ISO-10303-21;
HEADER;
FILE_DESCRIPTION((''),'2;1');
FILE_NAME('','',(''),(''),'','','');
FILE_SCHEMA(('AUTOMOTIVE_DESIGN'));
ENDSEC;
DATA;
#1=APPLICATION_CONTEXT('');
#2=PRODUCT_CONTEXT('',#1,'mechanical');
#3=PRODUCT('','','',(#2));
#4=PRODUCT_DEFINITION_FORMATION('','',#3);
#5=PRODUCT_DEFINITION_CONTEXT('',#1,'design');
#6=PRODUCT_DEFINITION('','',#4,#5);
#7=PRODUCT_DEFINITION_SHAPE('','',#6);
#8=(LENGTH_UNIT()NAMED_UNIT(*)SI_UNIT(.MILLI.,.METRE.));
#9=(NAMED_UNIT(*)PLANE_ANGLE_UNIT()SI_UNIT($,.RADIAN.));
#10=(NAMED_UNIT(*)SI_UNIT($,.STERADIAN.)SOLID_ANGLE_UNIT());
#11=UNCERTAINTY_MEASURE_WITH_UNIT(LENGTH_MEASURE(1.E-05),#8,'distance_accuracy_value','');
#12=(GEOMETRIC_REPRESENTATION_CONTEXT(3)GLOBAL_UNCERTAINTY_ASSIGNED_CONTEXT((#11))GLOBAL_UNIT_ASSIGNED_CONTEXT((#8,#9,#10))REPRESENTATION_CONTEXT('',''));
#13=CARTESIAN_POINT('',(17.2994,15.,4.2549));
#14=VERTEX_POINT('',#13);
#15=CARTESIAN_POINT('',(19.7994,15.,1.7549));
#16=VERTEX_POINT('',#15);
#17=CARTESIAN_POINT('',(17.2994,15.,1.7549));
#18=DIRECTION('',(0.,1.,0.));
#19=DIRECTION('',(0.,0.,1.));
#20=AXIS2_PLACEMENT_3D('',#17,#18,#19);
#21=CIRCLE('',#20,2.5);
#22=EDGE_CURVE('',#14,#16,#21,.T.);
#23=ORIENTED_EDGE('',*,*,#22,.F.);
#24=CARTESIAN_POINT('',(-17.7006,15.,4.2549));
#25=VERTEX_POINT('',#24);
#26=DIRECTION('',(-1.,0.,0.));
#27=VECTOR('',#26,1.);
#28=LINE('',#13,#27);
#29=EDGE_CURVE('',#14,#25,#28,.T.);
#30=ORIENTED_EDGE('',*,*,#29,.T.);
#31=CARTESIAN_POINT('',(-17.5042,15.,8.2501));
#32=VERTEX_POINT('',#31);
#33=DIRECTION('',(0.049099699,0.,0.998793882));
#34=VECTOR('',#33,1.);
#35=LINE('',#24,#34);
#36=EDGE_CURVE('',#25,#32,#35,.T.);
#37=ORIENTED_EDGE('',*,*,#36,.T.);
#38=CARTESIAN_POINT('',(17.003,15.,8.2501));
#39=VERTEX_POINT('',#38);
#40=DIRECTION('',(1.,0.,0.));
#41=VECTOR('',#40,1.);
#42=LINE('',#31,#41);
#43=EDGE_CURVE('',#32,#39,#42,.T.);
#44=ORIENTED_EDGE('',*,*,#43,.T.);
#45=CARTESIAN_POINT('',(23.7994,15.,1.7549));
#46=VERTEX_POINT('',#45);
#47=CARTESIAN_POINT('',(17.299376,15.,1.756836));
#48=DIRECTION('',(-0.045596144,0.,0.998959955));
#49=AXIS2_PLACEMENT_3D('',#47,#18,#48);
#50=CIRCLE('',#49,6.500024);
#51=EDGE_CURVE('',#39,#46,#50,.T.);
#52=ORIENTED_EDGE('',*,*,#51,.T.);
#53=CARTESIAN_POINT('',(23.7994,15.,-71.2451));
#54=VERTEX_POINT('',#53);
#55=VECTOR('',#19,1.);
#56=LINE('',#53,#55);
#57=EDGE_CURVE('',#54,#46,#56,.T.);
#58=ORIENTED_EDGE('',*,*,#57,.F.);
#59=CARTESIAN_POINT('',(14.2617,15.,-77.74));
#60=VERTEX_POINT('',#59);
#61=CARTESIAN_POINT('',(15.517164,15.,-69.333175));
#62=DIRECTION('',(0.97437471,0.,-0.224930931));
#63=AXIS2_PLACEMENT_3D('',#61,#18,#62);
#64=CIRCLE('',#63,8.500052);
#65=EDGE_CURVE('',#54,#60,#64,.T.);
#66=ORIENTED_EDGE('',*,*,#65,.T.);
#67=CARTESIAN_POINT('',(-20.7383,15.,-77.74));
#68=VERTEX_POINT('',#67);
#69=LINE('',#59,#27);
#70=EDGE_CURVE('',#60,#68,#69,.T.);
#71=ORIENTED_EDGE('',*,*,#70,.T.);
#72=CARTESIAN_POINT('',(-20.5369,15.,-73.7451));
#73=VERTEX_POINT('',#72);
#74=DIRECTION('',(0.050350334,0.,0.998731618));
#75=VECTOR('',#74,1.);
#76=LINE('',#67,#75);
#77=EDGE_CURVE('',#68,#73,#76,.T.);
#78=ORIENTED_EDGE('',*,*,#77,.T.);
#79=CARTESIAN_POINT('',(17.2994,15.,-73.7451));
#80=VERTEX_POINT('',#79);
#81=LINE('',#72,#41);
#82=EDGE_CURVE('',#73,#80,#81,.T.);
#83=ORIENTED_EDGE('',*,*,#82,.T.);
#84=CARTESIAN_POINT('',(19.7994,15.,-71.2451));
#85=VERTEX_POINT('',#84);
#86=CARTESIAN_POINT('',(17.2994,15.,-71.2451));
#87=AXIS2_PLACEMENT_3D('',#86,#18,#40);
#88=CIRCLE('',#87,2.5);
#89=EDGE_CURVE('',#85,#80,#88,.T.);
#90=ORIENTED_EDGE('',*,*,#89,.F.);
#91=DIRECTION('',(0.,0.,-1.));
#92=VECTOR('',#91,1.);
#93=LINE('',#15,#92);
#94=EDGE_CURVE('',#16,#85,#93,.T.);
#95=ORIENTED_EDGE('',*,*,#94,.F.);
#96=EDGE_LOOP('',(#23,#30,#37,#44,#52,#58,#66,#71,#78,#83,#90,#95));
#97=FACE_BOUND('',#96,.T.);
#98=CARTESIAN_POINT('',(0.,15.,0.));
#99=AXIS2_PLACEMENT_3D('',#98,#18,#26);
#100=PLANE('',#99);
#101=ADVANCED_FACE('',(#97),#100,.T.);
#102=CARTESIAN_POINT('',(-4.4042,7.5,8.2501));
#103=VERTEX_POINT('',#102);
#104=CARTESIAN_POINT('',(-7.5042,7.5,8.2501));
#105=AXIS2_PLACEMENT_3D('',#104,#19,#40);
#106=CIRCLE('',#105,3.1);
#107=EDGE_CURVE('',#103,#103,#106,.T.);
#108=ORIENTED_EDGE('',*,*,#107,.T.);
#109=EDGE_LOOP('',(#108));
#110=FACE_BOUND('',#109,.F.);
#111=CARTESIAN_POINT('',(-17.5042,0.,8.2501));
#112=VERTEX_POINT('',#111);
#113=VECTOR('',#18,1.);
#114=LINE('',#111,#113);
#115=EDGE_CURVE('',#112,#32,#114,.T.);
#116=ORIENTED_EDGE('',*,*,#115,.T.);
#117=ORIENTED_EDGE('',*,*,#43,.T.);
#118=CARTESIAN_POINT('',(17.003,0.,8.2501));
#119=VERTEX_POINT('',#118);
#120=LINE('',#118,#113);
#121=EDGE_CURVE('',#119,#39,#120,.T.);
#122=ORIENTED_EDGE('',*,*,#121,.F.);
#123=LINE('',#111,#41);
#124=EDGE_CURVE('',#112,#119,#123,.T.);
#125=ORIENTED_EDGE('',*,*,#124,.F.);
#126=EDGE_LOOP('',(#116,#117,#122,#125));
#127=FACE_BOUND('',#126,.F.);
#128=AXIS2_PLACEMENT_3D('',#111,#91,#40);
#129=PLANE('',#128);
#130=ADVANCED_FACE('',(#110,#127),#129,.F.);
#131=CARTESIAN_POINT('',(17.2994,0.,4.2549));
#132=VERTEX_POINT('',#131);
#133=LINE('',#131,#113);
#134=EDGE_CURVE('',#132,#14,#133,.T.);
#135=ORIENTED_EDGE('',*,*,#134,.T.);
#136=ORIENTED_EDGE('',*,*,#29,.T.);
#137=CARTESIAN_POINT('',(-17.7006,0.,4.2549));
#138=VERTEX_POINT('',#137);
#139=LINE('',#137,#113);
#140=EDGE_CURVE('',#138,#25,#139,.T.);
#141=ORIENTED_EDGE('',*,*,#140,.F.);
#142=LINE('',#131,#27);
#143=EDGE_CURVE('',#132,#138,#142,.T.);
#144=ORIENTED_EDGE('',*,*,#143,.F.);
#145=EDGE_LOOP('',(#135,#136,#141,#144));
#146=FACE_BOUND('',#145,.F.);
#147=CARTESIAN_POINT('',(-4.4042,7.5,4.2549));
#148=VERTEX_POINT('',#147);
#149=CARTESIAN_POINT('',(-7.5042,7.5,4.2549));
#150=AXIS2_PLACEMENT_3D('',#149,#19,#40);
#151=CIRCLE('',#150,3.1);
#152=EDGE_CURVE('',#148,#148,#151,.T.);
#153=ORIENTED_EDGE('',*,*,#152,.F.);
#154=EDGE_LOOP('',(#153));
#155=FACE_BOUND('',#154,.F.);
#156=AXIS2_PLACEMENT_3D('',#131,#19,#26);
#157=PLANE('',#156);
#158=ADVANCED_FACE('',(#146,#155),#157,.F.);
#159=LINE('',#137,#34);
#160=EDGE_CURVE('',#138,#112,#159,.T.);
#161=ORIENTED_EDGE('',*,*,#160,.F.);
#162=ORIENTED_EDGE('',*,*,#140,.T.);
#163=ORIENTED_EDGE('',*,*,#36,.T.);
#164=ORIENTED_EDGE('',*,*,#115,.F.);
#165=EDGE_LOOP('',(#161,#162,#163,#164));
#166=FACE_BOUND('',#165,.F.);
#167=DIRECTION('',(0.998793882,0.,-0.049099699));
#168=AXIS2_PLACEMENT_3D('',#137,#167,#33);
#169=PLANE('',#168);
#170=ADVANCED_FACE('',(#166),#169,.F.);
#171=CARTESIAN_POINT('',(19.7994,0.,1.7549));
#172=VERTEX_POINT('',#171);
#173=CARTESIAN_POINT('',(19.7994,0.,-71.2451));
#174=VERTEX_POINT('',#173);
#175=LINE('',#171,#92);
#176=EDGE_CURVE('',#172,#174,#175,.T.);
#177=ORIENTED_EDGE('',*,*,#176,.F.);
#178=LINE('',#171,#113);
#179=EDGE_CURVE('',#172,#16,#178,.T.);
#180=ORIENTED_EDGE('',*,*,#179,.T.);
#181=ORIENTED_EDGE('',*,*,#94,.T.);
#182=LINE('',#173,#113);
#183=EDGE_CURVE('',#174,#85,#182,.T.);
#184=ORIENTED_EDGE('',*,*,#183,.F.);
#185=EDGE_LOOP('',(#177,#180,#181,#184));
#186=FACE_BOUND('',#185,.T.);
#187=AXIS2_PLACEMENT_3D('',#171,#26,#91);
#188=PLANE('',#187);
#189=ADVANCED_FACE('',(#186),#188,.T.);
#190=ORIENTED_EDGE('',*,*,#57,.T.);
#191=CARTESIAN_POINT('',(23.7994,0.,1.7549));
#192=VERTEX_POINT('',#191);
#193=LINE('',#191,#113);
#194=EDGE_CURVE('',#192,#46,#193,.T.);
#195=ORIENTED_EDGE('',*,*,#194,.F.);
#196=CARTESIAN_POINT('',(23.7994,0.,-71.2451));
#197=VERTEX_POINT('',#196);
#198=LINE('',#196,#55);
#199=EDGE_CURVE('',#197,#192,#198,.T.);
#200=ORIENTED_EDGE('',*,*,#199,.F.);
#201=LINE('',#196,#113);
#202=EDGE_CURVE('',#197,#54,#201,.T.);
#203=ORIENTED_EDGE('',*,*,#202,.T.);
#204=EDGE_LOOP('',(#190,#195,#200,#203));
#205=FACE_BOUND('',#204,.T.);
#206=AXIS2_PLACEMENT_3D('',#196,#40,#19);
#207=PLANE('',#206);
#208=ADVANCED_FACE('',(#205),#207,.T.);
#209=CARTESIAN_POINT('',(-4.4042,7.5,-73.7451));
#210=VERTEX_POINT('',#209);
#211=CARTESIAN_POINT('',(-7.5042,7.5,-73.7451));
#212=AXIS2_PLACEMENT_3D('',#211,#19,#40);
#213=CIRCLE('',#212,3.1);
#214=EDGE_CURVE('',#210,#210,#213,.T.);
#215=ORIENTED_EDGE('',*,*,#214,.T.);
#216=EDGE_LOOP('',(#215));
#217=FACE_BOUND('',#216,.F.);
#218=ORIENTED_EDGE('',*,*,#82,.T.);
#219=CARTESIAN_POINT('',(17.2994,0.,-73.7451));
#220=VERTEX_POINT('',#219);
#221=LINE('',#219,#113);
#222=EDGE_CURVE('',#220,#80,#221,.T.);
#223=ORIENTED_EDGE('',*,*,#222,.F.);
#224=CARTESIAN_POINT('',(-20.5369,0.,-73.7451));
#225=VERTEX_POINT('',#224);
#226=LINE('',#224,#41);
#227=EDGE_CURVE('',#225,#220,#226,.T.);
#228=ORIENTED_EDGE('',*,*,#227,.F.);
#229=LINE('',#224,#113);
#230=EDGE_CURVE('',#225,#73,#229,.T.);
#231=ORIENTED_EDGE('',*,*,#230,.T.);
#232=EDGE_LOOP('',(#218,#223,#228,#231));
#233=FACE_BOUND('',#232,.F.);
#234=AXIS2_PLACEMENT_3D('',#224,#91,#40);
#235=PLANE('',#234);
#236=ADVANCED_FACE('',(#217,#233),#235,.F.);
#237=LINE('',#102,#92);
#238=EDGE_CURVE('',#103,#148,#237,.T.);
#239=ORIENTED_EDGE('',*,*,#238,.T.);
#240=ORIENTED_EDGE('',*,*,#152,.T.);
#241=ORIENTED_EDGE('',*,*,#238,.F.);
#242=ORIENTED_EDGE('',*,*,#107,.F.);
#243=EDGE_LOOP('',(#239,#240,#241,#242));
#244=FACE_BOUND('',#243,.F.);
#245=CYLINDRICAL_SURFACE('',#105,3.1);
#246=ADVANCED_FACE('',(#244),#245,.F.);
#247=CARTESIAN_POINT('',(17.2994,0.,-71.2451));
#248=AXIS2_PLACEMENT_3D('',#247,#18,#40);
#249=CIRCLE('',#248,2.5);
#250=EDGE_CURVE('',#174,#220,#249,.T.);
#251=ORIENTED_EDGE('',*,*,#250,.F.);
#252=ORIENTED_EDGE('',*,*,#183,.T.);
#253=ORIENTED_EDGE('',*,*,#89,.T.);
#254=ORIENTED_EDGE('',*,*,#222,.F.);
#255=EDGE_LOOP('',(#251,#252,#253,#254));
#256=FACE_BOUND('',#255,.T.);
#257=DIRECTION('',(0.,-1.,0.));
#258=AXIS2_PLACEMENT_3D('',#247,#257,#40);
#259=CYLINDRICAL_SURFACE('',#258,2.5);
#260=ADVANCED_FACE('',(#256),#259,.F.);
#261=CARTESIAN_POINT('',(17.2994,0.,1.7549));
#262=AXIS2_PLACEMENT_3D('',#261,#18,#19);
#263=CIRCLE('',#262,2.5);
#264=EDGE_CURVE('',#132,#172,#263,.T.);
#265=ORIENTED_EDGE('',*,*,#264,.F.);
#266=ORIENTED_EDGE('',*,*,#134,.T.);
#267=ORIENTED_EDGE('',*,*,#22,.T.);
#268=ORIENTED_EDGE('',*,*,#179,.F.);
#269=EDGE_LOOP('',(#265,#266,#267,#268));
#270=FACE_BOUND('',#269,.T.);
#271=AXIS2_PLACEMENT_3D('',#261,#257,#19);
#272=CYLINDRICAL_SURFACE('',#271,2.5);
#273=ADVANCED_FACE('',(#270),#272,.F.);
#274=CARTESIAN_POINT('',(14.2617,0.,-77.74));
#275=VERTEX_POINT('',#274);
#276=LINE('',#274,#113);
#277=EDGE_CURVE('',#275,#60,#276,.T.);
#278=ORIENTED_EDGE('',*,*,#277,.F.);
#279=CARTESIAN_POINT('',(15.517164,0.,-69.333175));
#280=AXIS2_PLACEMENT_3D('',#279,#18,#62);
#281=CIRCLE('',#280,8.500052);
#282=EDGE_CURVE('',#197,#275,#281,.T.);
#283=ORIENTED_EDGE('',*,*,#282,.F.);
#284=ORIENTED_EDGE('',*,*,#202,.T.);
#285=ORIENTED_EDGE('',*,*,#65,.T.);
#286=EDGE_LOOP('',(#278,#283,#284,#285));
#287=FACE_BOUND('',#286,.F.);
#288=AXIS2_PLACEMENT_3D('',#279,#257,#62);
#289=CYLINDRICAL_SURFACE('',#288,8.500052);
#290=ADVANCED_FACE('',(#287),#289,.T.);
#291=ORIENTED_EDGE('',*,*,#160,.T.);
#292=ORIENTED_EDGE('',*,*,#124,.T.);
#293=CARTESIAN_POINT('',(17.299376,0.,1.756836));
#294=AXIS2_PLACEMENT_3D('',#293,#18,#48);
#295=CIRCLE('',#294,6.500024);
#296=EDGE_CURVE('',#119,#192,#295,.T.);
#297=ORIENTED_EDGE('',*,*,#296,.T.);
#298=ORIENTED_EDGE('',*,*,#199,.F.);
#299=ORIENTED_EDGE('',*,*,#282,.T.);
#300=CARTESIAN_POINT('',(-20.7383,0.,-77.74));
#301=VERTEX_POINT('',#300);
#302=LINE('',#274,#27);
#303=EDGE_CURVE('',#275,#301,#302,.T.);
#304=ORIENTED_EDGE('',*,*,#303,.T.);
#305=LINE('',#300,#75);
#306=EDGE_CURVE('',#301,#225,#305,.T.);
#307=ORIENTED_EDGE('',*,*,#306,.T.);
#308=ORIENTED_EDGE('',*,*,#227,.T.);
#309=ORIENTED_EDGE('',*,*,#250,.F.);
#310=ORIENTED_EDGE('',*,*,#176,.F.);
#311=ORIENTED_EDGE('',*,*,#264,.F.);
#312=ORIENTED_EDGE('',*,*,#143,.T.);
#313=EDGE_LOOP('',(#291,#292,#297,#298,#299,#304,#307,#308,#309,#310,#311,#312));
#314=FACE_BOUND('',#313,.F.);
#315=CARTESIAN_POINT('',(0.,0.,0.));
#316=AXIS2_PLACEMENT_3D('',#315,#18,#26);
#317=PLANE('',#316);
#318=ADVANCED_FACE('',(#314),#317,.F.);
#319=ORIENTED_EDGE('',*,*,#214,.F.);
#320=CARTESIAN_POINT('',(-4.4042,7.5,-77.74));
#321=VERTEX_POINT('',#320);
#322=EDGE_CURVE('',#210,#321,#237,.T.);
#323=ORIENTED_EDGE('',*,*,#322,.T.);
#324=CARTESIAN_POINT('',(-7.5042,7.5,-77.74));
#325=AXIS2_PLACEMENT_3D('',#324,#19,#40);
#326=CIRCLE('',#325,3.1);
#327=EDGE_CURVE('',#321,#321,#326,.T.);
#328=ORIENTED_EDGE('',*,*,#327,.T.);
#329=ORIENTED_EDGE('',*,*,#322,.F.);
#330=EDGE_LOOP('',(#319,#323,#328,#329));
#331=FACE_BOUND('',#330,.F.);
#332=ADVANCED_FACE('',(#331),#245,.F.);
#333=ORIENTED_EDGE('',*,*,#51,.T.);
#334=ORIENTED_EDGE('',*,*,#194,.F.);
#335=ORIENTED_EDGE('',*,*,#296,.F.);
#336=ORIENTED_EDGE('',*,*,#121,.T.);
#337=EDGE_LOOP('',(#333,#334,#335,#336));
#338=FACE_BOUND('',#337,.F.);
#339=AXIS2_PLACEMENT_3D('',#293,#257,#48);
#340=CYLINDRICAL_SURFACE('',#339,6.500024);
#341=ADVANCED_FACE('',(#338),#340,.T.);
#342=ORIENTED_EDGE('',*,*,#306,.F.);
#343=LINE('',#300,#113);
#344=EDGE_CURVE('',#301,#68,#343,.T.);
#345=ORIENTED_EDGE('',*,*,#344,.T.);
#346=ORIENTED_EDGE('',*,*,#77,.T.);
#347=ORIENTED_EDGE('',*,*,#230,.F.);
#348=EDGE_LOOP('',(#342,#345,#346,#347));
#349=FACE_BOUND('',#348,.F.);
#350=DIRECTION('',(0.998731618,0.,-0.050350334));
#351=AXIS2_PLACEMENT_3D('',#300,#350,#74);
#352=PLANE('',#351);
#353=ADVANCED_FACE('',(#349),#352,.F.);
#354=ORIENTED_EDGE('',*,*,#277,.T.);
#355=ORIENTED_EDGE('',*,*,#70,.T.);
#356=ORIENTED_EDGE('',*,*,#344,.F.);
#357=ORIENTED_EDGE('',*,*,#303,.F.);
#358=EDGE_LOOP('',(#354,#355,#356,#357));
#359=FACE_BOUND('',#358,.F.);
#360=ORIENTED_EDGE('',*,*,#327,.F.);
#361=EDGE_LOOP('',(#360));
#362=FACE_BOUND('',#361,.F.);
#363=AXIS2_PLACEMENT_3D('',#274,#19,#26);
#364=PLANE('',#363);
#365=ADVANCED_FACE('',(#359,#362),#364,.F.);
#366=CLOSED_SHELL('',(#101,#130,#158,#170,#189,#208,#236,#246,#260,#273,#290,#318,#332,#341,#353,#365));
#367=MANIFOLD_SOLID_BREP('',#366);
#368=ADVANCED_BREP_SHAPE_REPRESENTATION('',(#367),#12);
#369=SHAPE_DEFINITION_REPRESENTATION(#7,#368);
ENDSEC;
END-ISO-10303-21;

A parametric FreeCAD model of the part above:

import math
import FreeCAD as App
import Part
import Sketcher

doc = App.newDocument("Part")
body = doc.addObject("PartDesign::Body", "Body")

sketch1 = body.newObject("Sketcher::SketchObject", "Sketch")
sketch1.AttachmentSupport = (doc.getObject("XZ_Plane"), [""])
sketch1.MapMode = "FlatFace"
sketch1.addGeometry(Part.LineSegment(App.Vector(-20.7383, -77.74, 0), App.Vector(-20.5369, -73.7451, 0)), False)
sketch1.addGeometry(Part.LineSegment(App.Vector(-20.5369, -73.7451, 0), App.Vector(17.2994, -73.7451, 0)), False)
sketch1.addGeometry(Part.ArcOfCircle(Part.Circle(App.Vector(17.2994, -71.2451, 0), App.Vector(0, 0, 1), 2.5), math.radians(-90), math.radians(0)), False)
sketch1.addGeometry(Part.LineSegment(App.Vector(19.7994, -71.2451, 0), App.Vector(19.7994, 1.7549, 0)), False)
sketch1.addGeometry(Part.ArcOfCircle(Part.Circle(App.Vector(17.2994, 1.7549, 0), App.Vector(0, 0, 1), 2.5), math.radians(0), math.radians(90)), False)
sketch1.addGeometry(Part.LineSegment(App.Vector(17.2994, 4.2549, 0), App.Vector(-17.7006, 4.2549, 0)), False)
sketch1.addGeometry(Part.LineSegment(App.Vector(-17.7006, 4.2549, 0), App.Vector(-17.5042, 8.2501, 0)), False)
sketch1.addGeometry(Part.LineSegment(App.Vector(-17.5042, 8.2501, 0), App.Vector(17.003, 8.2501, 0)), False)
sketch1.addGeometry(Part.ArcOfCircle(Part.Circle(App.Vector(17.2994, 1.7569, 0), App.Vector(0, 0, 1), 6.499961), math.radians(-0.017629), math.radians(92.613609)), False)
sketch1.addGeometry(Part.LineSegment(App.Vector(23.7994, 1.7549, 0), App.Vector(23.7994, -71.2451, 0)), False)
sketch1.addGeometry(Part.ArcOfCircle(Part.Circle(App.Vector(15.5172, -69.3332, 0), App.Vector(0, 0, 1), 8.500012), math.radians(-98.493969), math.radians(-12.998709)), False)
sketch1.addGeometry(Part.LineSegment(App.Vector(14.2617, -77.74, 0), App.Vector(-20.7383, -77.74, 0)), False)
sketch1.addConstraint(Sketcher.Constraint("Coincident", 0, 2, 1, 1))
sketch1.addConstraint(Sketcher.Constraint("Coincident", 1, 2, 2, 1))
sketch1.addConstraint(Sketcher.Constraint("Coincident", 2, 2, 3, 1))
sketch1.addConstraint(Sketcher.Constraint("Coincident", 3, 2, 4, 1))
sketch1.addConstraint(Sketcher.Constraint("Coincident", 4, 2, 5, 1))
sketch1.addConstraint(Sketcher.Constraint("Coincident", 5, 2, 6, 1))
sketch1.addConstraint(Sketcher.Constraint("Coincident", 6, 2, 7, 1))
sketch1.addConstraint(Sketcher.Constraint("Coincident", 7, 2, 8, 2))
sketch1.addConstraint(Sketcher.Constraint("Coincident", 8, 1, 9, 1))
sketch1.addConstraint(Sketcher.Constraint("Coincident", 9, 2, 10, 2))
sketch1.addConstraint(Sketcher.Constraint("Coincident", 10, 1, 11, 1))
sketch1.addConstraint(Sketcher.Constraint("Coincident", 11, 2, 0, 1))
sketch1.addConstraint(Sketcher.Constraint("Horizontal", 1))
sketch1.addConstraint(Sketcher.Constraint("Vertical", 3))
sketch1.addConstraint(Sketcher.Constraint("Horizontal", 5))
sketch1.addConstraint(Sketcher.Constraint("Horizontal", 7))
sketch1.addConstraint(Sketcher.Constraint("Vertical", 9))
sketch1.addConstraint(Sketcher.Constraint("Horizontal", 11))
sketch1.addConstraint(Sketcher.Constraint("Radius", 2, 2.5))
sketch1.addConstraint(Sketcher.Constraint("Radius", 4, 2.5))
sketch1.addConstraint(Sketcher.Constraint("Radius", 8, 6.5))
sketch1.addConstraint(Sketcher.Constraint("Radius", 10, 8.5))
sketch1.addConstraint(Sketcher.Constraint("DistanceX", 5, 2, 5, 1, 35.0))
sketch1.addConstraint(Sketcher.Constraint("DistanceX", 11, 2, 11, 1, 35.0))
sketch1.addConstraint(Sketcher.Constraint("DistanceY", 3, 1, 3, 2, 73.0))
sketch1.addConstraint(Sketcher.Constraint("DistanceY", 9, 2, 9, 1, 73.0))
sketch1.addConstraint(Sketcher.Constraint("Distance", 0, 4.0))
sketch1.addConstraint(Sketcher.Constraint("Distance", 6, 4.0))
sketch1.addConstraint(Sketcher.Constraint("DistanceY", 2, 3, 4, 3, 73.0))
sketch1.addConstraint(Sketcher.Constraint("DistanceY", 2, 2, 4, 3, 73.0))
sketch1.addConstraint(Sketcher.Constraint("DistanceX", 5, 2, 8, 3, 35.0))
sketch1.addConstraint(Sketcher.Constraint("DistanceX", 5, 2, 4, 3, 35.0))
sketch1.addConstraint(Sketcher.Constraint("DistanceX", 1, 2, 2, 2, 2.5))
sketch1.addConstraint(Sketcher.Constraint("DistanceY", 8, 1, 4, 2, 2.5))
sketch1.addConstraint(Sketcher.Constraint("DistanceY", -1, 1, 6, 2, 8.25))
sketch1.addConstraint(Sketcher.Constraint("DistanceY", 10, 1, -1, 1, 77.74))
sketch1.addConstraint(Sketcher.Constraint("DistanceY", 10, 3, 8, 3, 71.09))
sketch1.addConstraint(Sketcher.Constraint("DistanceX", 1, 1, 1, 2, 37.8363))
sketch1.addConstraint(Sketcher.Constraint("DistanceX", 7, 1, 7, 2, 34.5072))
sketch1.addConstraint(Sketcher.Constraint("DistanceX", 0, 2, -1, 1, 20.537))
pad1 = body.newObject("PartDesign::Pad", "Pad")
pad1.Profile = sketch1
pad1.Length = 15
pad1.Reversed = True

sketch2 = body.newObject("Sketcher::SketchObject", "Sketch001")
sketch2.AttachmentSupport = (doc.getObject("XY_Plane"), [""])
sketch2.MapMode = "FlatFace"
sketch2.AttachmentOffset = App.Placement(App.Vector(0, 0, 8.2501), App.Rotation())
sketch2.addGeometry(Part.Circle(App.Vector(-7.5, 7.5, 0), App.Vector(0, 0, 1), 3.1), False)
sketch2.addConstraint(Sketcher.Constraint("Diameter", 0, 6.2))
sketch2.addConstraint(Sketcher.Constraint("DistanceY", -1, 1, 0, 3, 7.5))
sketch2.addConstraint(Sketcher.Constraint("DistanceX", 0, 3, -1, 1, 7.5042))
pocket1 = body.newObject("PartDesign::Pocket", "Pocket")
pocket1.Profile = sketch2
pocket1.Length = 120

doc.recompute()
